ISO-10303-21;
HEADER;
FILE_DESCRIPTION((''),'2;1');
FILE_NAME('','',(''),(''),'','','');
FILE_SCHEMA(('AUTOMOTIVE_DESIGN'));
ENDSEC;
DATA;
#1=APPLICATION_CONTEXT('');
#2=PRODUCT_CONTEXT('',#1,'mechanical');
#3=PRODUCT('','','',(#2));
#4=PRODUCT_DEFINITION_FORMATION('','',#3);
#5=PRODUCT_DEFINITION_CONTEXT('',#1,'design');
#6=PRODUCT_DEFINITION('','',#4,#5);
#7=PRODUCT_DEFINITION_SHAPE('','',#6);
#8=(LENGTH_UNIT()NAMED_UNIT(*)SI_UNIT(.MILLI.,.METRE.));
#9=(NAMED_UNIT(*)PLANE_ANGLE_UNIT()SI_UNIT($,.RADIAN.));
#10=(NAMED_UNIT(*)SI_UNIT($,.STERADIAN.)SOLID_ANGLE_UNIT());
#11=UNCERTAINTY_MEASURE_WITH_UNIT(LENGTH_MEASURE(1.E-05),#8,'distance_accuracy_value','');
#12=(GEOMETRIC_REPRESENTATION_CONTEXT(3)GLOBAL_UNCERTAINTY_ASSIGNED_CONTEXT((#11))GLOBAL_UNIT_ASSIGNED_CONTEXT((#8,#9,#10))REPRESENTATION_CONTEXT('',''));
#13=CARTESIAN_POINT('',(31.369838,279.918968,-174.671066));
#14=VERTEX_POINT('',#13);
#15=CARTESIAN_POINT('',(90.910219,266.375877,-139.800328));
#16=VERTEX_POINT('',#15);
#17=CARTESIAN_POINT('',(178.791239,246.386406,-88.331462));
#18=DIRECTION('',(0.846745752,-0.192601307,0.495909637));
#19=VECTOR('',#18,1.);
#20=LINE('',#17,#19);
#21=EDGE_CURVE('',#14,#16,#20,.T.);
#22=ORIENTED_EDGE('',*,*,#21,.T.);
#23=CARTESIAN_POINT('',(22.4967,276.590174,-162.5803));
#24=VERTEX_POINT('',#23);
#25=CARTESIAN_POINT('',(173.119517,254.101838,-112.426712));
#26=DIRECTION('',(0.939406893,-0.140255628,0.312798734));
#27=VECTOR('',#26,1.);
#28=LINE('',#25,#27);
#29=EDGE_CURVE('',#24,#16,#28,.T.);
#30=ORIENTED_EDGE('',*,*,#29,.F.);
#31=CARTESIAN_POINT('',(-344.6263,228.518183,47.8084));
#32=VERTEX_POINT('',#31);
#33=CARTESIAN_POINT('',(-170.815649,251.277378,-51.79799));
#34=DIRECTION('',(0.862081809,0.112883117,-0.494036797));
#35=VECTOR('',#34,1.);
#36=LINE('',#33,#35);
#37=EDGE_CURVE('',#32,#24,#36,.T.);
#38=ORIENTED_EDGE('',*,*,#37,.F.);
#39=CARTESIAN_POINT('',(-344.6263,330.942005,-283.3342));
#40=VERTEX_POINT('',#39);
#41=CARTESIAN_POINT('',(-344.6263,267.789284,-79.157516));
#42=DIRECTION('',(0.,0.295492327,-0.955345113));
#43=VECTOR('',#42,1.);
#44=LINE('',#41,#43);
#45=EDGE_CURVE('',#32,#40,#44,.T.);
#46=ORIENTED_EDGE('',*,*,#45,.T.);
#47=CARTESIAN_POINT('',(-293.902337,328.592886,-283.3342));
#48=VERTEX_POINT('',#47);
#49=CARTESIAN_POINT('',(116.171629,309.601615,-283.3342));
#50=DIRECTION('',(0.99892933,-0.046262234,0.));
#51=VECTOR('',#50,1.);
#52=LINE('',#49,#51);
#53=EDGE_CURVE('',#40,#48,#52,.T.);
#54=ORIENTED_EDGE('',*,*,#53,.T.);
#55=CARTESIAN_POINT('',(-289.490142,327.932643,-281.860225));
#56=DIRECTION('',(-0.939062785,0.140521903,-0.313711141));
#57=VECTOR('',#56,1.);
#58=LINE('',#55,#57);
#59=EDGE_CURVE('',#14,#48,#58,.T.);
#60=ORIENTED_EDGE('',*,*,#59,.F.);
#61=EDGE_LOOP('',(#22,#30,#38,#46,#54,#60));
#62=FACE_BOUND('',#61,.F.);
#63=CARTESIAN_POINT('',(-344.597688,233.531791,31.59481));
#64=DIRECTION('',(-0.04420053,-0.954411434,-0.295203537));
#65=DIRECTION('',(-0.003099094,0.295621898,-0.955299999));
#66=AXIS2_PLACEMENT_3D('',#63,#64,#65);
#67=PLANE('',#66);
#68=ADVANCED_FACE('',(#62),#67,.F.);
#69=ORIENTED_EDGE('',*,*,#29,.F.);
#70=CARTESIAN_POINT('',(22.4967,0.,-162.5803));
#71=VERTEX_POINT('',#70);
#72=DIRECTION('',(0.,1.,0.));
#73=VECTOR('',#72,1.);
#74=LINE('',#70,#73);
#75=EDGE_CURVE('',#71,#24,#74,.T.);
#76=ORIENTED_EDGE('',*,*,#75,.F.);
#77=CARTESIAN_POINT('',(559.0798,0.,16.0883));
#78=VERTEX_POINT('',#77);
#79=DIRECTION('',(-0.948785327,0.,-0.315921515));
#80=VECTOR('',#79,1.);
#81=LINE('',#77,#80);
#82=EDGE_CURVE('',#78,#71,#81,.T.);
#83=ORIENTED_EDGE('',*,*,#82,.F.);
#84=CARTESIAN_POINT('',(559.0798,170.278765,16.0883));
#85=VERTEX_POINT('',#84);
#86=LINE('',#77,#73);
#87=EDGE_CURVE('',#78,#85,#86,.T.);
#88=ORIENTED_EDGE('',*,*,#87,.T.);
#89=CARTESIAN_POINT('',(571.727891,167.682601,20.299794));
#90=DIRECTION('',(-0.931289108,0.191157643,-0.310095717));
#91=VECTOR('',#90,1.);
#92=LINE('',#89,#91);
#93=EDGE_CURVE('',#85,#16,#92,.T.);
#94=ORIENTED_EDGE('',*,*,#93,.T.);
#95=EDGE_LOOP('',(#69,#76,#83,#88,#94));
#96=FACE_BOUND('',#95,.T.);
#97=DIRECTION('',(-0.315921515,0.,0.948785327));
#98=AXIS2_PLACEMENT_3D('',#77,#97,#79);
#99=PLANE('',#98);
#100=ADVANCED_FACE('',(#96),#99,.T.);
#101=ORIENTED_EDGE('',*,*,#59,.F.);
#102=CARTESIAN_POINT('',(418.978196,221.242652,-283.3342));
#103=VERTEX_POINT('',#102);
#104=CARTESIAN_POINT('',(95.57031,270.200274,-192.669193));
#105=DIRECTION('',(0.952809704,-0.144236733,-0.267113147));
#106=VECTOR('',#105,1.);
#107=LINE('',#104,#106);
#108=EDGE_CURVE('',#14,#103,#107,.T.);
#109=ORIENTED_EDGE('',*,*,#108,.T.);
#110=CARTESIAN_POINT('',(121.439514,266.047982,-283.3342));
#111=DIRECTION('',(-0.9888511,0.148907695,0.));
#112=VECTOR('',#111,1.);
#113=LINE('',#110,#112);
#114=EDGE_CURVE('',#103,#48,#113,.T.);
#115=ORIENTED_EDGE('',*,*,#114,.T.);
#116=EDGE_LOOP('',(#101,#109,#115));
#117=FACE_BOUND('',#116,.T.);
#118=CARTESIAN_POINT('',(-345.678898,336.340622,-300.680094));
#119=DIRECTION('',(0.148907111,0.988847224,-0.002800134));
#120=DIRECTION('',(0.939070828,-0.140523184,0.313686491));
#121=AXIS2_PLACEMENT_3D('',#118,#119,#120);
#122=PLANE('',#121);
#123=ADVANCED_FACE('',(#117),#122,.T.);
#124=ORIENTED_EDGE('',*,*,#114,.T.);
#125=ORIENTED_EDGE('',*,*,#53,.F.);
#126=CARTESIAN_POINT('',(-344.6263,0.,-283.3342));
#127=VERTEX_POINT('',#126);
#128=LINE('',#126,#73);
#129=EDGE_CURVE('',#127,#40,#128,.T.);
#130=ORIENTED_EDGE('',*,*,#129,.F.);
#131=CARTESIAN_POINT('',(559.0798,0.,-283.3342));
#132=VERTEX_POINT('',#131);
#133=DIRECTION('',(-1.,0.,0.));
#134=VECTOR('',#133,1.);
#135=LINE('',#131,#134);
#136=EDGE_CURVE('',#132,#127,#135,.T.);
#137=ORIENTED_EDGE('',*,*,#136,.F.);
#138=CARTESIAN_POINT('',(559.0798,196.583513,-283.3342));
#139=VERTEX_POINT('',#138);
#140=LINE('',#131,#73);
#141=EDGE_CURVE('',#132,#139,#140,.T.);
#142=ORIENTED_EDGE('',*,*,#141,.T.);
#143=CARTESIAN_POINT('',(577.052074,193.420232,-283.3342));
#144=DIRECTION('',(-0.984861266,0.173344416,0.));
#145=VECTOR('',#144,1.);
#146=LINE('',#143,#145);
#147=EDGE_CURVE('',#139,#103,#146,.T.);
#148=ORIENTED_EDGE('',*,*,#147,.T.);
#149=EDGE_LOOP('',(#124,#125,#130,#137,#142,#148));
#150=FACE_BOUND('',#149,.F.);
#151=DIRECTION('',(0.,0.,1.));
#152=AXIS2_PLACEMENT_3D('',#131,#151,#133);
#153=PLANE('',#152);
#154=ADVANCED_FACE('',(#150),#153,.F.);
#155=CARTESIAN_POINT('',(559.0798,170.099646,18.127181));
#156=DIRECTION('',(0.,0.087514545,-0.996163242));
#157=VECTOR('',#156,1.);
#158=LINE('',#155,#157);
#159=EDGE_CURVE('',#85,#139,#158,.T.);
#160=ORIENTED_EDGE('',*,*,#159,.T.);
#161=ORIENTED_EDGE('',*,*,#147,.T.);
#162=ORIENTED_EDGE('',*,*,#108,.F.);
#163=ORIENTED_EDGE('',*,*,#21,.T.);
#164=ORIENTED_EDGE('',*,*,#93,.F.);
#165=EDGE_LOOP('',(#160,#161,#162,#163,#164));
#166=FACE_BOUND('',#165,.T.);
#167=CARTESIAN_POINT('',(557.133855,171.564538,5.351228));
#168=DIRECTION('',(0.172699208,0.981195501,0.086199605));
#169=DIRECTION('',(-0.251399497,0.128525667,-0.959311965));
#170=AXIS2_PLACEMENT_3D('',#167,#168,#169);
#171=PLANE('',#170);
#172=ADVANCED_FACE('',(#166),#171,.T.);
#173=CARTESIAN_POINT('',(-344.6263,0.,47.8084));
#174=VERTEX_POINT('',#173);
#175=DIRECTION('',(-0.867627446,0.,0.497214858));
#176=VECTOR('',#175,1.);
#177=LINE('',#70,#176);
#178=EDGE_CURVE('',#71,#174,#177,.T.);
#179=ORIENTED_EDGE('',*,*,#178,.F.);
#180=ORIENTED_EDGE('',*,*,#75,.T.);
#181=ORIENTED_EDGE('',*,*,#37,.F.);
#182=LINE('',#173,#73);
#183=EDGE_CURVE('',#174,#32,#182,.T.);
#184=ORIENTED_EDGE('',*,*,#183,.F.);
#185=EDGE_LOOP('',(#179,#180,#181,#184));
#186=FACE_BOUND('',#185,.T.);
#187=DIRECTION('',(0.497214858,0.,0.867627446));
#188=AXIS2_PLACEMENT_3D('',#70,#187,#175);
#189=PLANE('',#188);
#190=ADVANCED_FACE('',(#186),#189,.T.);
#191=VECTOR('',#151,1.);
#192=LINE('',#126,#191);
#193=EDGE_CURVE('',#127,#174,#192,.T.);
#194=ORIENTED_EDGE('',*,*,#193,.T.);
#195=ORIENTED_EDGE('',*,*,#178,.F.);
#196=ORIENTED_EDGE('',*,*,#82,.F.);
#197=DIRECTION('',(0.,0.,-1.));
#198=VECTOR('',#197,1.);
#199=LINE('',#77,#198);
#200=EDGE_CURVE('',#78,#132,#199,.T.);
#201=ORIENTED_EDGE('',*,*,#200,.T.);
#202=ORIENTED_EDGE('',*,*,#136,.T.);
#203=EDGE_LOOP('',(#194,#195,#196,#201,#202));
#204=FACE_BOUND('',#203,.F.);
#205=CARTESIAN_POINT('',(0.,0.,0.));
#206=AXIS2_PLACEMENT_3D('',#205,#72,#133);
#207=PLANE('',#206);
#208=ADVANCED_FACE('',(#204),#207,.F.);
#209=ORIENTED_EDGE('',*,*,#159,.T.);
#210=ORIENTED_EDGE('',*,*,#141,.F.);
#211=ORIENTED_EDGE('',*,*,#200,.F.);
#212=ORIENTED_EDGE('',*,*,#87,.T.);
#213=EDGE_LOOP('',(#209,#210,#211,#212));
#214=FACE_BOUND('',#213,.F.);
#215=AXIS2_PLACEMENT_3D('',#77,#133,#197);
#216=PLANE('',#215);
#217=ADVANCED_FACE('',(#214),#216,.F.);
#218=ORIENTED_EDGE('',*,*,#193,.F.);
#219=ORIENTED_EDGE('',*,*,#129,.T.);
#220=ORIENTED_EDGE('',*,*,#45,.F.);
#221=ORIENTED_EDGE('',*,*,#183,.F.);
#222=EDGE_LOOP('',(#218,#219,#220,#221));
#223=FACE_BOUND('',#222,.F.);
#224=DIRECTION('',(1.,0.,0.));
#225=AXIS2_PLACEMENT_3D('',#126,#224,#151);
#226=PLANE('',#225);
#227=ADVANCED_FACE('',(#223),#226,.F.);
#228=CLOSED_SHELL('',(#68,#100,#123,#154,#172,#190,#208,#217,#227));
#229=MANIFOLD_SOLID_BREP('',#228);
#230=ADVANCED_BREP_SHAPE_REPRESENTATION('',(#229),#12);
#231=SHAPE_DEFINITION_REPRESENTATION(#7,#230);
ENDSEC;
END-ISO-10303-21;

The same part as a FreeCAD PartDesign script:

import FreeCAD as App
import Part
import Sketcher

V = App.Vector
Q = App.Units.Quantity

doc = App.newDocument("Part")
body = doc.addObject("PartDesign::Body", "Body")

sketch1 = body.newObject("Sketcher::SketchObject", "Sketch")
sketch1.AttachmentSupport = (doc.getObject("XZ_Plane"), [""])
sketch1.MapMode = "FlatFace"
sketch1.addGeometry(Part.LineSegment(V(22.4967, -162.5803, 0), V(559.0798, 16.0883, 0)), False)
sketch1.addGeometry(Part.LineSegment(V(559.0798, 16.0883, 0), V(559.0798, -283.3342, 0)), False)
sketch1.addGeometry(Part.LineSegment(V(559.0798, -283.3342, 0), V(-344.6263, -283.3342, 0)), False)
sketch1.addGeometry(Part.LineSegment(V(-344.6263, -283.3342, 0), V(-344.6263, 47.8084, 0)), False)
sketch1.addGeometry(Part.LineSegment(V(-344.6263, 47.8084, 0), V(22.4967, -162.5803, 0)), False)
sketch1.addConstraint(Sketcher.Constraint("Coincident", 0, 2, 1, 1))
sketch1.addConstraint(Sketcher.Constraint("Coincident", 1, 2, 2, 1))
sketch1.addConstraint(Sketcher.Constraint("Coincident", 2, 2, 3, 1))
sketch1.addConstraint(Sketcher.Constraint("Coincident", 3, 2, 4, 1))
sketch1.addConstraint(Sketcher.Constraint("Coincident", 4, 2, 0, 1))
sketch1.addConstraint(Sketcher.Constraint("Vertical", 1))
sketch1.addConstraint(Sketcher.Constraint("Horizontal", 2))
sketch1.addConstraint(Sketcher.Constraint("Vertical", 3))
sketch1.addConstraint(Sketcher.Constraint("DistanceX", 2, 2, 2, 1, Q("903.706 mm")))
sketch1.addConstraint(Sketcher.Constraint("DistanceY", 0, 2, 3, 2, Q("31.72 mm")))
sketch1.addConstraint(Sketcher.Constraint("DistanceY", 1, 2, 1, 1, Q("299.4225 mm")))
sketch1.addConstraint(Sketcher.Constraint("DistanceX", 2, 2, 4, 2, Q("367.123 mm")))
sketch1.addConstraint(Sketcher.Constraint("DistanceY", 2, 2, 4, 2, Q("120.754 mm")))
sketch1.addConstraint(Sketcher.Constraint("DistanceX", -1, 1, 0, 2, Q("559.0798 mm")))
sketch1.addConstraint(Sketcher.Constraint("DistanceY", -1, 1, 0, 2, Q("16.0883 mm")))
pad1 = body.newObject("PartDesign::Pad", "Pad")
pad1.Profile = sketch1
pad1.Length = 360
pad1.Reversed = True

sketch2 = body.newObject("Sketcher::SketchObject", "Sketch001")
sketch2.Placement = App.Placement(V(-345.6786, 336.3426, -300.6801), App.Rotation(V(0.939070828, -0.140523184, 0.313686491), V(0.309794532, -0.049339673, -0.949522483), V(0.148907111, 0.988847224, -0.002800134), "ZXY"))
sketch2.addGeometry(Part.LineSegment(V(-1676.0607, -667.2238, 0), V(2221.5026, -667.2238, 0)), False)
sketch2.addGeometry(Part.LineSegment(V(2221.5026, -667.2238, 0), V(2221.5026, 746.616901, 0)), False)
sketch2.addGeometry(Part.LineSegment(V(2221.5026, 746.616901, 0), V(-1676.0607, 746.616901, 0)), False)
sketch2.addGeometry(Part.LineSegment(V(-1676.0607, 746.616901, 0), V(-1676.0607, -667.2238, 0)), False)
sketch2.addConstraint(Sketcher.Constraint("Coincident", 0, 2, 1, 1))
sketch2.addConstraint(Sketcher.Constraint("Coincident", 1, 2, 2, 1))
sketch2.addConstraint(Sketcher.Constraint("Coincident", 2, 2, 3, 1))
sketch2.addConstraint(Sketcher.Constraint("Coincident", 3, 2, 0, 1))
sketch2.addConstraint(Sketcher.Constraint("Horizontal", 0))
sketch2.addConstraint(Sketcher.Constraint("Vertical", 1))
sketch2.addConstraint(Sketcher.Constraint("Horizontal", 2))
sketch2.addConstraint(Sketcher.Constraint("Vertical", 3))
sketch2.addConstraint(Sketcher.Constraint("DistanceX", 0, 1, 0, 2, Q("3897.5633 mm")))
sketch2.addConstraint(Sketcher.Constraint("DistanceY", 1, 1, 1, 2, Q("1413.8407 mm")))
sketch2.addConstraint(Sketcher.Constraint("DistanceY", -1, 1, 1, 2, Q("746.617 mm")))
sketch2.addConstraint(Sketcher.Constraint("DistanceX", -1, 1, 0, 2, Q("2221.5026 mm")))
pocket1 = body.newObject("PartDesign::Pocket", "Pocket")
pocket1.Profile = sketch2
pocket1.Length = 360
pocket1.Reversed = True

sketch3 = body.newObject("Sketcher::SketchObject", "Sketch002")
sketch3.Placement = App.Placement(V(-344.5976, 233.5337, 31.5954), App.Rotation(V(-0.003099094, 0.295621898, -0.955299999), V(0.999017872, -0.041309903, -0.016024455), V(-0.04420053, -0.954411434, -0.295203537), "ZXY"))
sketch3.addGeometry(Part.LineSegment(V(1231.067399, 2575.200799, 0), V(-1292.545599, 2575.200799, 0)), False)
sketch3.addGeometry(Part.LineSegment(V(-1292.545599, 2575.200799, 0), V(-1292.545599, -1866.357999, 0)), False)
sketch3.addGeometry(Part.LineSegment(V(-1292.545599, -1866.357999, 0), V(1231.067399, -1866.357999, 0)), False)
sketch3.addGeometry(Part.LineSegment(V(1231.067399, -1866.357999, 0), V(1231.067399, 2575.200799, 0)), False)
sketch3.addConstraint(Sketcher.Constraint("Coincident", 0, 2, 1, 1))
sketch3.addConstraint(Sketcher.Constraint("Coincident", 1, 2, 2, 1))
sketch3.addConstraint(Sketcher.Constraint("Coincident", 2, 2, 3, 1))
sketch3.addConstraint(Sketcher.Constraint("Coincident", 3, 2, 0, 1))
sketch3.addConstraint(Sketcher.Constraint("Horizontal", 0))
sketch3.addConstraint(Sketcher.Constraint("Vertical", 1))
sketch3.addConstraint(Sketcher.Constraint("Horizontal", 2))
sketch3.addConstraint(Sketcher.Constraint("Vertical", 3))
sketch3.addConstraint(Sketcher.Constraint("DistanceX", 0, 2, 0, 1, Q("2523.613 mm")))
sketch3.addConstraint(Sketcher.Constraint("DistanceY", 1, 2, 1, 1, Q("4441.5588 mm")))
sketch3.addConstraint(Sketcher.Constraint("DistanceY", 1, 2, -1, 1, Q("1866.358 mm")))
sketch3.addConstraint(Sketcher.Constraint("DistanceX", 0, 2, -1, 1, Q("1292.5456 mm")))
pocket2 = body.newObject("PartDesign::Pocket", "Pocket001")
pocket2.Profile = sketch3
pocket2.Length = 360

sketch4 = body.newObject("Sketcher::SketchObject", "Sketch003")
sketch4.Placement = App.Placement(V(557.1342, 171.5665, 5.3514), App.Rotation(V(-0.251399497, 0.128525667, -0.959311965), V(-0.952351446, 0.144001879, 0.268868336), V(0.172699208, 0.981195501, 0.086199605), "ZXY"))
sketch4.addGeometry(Part.LineSegment(V(-514.7241, 1684.2947, 0), V(-514.7241, -766.6326, 0)), False)
sketch4.addGeometry(Part.LineSegment(V(-514.7241, -766.6326, 0), V(967.6123, -766.6326, 0)), False)
sketch4.addGeometry(Part.LineSegment(V(967.6123, -766.6326, 0), V(967.6123, 1684.2947, 0)), False)
sketch4.addGeometry(Part.LineSegment(V(967.6123, 1684.2947, 0), V(-514.7241, 1684.2947, 0)), False)
sketch4.addConstraint(Sketcher.Constraint("Coincident", 0, 2, 1, 1))
sketch4.addConstraint(Sketcher.Constraint("Coincident", 1, 2, 2, 1))
sketch4.addConstraint(Sketcher.Constraint("Coincident", 2, 2, 3, 1))
sketch4.addConstraint(Sketcher.Constraint("Coincident", 3, 2, 0, 1))
sketch4.addConstraint(Sketcher.Constraint("Vertical", 0))
sketch4.addConstraint(Sketcher.Constraint("Horizontal", 1))
sketch4.addConstraint(Sketcher.Constraint("Vertical", 2))
sketch4.addConstraint(Sketcher.Constraint("Horizontal", 3))
sketch4.addConstraint(Sketcher.Constraint("DistanceX", 1, 1, 1, 2, Q("1482.3364 mm")))
sketch4.addConstraint(Sketcher.Constraint("DistanceY", 0, 2, 0, 1, Q("2450.9273 mm")))
sketch4.addConstraint(Sketcher.Constraint("DistanceX", 0, 2, -1, 1, Q("514.724 mm")))
sketch4.addConstraint(Sketcher.Constraint("DistanceY", 0, 2, -1, 1, Q("766.6326 mm")))
pocket3 = body.newObject("PartDesign::Pocket", "Pocket002")
pocket3.Profile = sketch4
pocket3.Length = 360
pocket3.Reversed = True

doc.recompute()
